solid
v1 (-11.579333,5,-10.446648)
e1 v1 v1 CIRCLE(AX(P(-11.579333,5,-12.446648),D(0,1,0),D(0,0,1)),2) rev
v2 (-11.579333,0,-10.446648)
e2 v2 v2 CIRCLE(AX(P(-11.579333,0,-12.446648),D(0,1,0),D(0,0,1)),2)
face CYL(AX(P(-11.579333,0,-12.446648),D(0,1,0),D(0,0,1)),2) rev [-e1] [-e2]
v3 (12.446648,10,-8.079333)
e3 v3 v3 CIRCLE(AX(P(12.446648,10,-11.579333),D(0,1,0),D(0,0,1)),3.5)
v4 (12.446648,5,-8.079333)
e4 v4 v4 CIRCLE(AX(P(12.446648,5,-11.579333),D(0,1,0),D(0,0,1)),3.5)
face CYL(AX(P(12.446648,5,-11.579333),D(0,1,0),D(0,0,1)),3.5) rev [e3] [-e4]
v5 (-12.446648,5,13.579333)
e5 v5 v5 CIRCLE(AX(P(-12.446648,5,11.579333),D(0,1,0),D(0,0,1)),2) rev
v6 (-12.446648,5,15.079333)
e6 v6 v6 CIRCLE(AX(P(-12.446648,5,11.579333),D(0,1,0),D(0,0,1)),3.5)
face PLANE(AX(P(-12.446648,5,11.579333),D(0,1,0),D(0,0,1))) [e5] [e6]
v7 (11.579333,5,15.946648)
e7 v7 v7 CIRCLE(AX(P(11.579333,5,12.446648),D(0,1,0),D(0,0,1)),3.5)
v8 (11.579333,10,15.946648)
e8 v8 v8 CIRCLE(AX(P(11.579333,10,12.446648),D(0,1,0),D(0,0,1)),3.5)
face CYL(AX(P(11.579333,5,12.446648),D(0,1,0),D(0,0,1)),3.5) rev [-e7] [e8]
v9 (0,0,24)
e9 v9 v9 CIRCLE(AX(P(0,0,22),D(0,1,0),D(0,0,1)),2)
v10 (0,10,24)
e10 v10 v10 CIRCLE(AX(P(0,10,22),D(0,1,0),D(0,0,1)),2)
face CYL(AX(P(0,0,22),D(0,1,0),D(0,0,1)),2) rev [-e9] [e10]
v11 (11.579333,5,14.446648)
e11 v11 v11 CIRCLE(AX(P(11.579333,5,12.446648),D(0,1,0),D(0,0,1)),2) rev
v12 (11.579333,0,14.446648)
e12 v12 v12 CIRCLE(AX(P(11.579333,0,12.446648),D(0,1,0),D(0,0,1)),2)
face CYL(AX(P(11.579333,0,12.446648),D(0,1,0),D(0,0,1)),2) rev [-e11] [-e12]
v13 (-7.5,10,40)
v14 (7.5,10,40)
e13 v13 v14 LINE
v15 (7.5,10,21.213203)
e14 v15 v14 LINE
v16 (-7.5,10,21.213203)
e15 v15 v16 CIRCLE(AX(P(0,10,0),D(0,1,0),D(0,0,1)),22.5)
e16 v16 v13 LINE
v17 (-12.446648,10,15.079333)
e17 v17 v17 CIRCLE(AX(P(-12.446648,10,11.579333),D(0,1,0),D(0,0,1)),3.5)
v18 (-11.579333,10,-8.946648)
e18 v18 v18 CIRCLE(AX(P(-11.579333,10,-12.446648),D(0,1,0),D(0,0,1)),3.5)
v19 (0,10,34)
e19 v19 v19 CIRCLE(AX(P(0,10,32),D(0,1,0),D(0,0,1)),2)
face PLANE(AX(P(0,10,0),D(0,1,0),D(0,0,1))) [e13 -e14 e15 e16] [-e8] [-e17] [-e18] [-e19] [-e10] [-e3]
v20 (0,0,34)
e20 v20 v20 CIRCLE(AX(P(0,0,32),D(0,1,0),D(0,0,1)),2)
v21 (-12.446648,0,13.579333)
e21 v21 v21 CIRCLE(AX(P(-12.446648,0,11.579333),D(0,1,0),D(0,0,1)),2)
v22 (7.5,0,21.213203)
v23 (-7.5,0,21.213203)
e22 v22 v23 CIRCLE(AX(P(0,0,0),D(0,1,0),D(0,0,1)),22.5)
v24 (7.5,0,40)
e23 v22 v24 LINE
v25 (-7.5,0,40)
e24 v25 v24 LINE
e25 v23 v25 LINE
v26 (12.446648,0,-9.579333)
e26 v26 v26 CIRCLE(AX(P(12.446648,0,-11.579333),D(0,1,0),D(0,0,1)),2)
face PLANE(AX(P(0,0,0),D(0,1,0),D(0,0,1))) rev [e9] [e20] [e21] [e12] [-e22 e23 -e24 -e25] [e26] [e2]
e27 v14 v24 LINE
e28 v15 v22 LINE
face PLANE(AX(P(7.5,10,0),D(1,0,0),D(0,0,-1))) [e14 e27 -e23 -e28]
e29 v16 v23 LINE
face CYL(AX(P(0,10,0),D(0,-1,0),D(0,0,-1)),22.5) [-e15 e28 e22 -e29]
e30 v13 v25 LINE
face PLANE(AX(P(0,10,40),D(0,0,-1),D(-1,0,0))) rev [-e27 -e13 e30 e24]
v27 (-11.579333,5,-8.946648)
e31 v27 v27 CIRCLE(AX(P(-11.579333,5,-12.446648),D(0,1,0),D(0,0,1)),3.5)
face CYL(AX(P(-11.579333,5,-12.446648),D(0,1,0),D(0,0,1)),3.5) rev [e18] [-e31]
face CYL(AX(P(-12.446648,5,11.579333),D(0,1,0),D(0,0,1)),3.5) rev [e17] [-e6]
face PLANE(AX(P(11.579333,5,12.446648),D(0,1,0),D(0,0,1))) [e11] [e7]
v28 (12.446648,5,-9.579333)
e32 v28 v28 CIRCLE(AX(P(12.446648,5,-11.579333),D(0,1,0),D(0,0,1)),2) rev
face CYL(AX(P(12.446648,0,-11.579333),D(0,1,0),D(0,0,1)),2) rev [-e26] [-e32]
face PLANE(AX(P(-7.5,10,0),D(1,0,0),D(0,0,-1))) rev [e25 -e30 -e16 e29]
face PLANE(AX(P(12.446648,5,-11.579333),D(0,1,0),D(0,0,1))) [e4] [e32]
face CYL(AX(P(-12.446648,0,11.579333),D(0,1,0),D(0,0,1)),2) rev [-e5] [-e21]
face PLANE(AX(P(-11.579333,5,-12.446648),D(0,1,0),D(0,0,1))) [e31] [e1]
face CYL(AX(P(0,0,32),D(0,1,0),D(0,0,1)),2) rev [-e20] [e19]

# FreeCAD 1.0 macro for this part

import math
import FreeCAD as App
import Part
import Sketcher
Q = App.Units.Quantity

doc = App.newDocument("Part")
params = doc.addObject("Spreadsheet::Sheet", "Params")
for row, (alias, value) in enumerate([
    ("sketch1_radius", "22.5 mm"),
    ("sketch1_width", "15 mm"),
    ("pad1_length", "10 mm"),
    ("sketch2_diameter", "4 mm"),
    ("pocket1_length", "10 mm"),
    ("sketch3_diameter", "4 mm"),
    ("pocket2_length", "10 mm"),
    ("sketch4_diameter", "7 mm"),
    ("pocket3_length", "5 mm"),
], start=1):
    params.set(f"A{row}", alias)
    params.set(f"B{row}", "=" + value)
    params.setAlias(f"B{row}", alias)

body = doc.addObject("PartDesign::Body", "Body")

# Sketch on XZ plane
sketch1 = body.newObject("Sketcher::SketchObject", "Sketch")
sketch1.AttachmentSupport = (doc.getObject("XZ_Plane"), [""])
sketch1.MapMode = "FlatFace"
sketch1.addGeometry([
    Part.LineSegment(App.Vector(-8, 40, 0), App.Vector(8, 40, 0)),  # 0
    Part.LineSegment(App.Vector(8, 40, 0), App.Vector(8, 21, 0)),  # 1
    Part.ArcOfCircle(Part.Circle(App.Vector(0, 0, 0), App.Vector(0, 0, 1), 22), math.radians(0), math.radians(71)),  # 2
    Part.ArcOfCircle(Part.Circle(App.Vector(0, 0, 0), App.Vector(0, 0, 1), 22), math.radians(109), math.radians(360)),  # 3
    Part.LineSegment(App.Vector(-8, 21, 0), App.Vector(-8, 40, 0)),  # 4
], False)
sketch1.addConstraint([
    Sketcher.Constraint("Coincident", 0, 2, 1, 1),
    Sketcher.Constraint("Coincident", 1, 2, 2, 2),
    Sketcher.Constraint("Tangent", 2, 1, 3, 2),
    Sketcher.Constraint("Coincident", 3, 1, 4, 1),
    Sketcher.Constraint("Coincident", 4, 2, 0, 1),
    Sketcher.Constraint("Horizontal", 0),
    Sketcher.Constraint("Vertical", 1),
    Sketcher.Constraint("Vertical", 4),
    Sketcher.Constraint("Coincident", 2, 3, -1, 1),
    Sketcher.Constraint("Equal", 2, 3),
    Sketcher.Constraint("PointOnObject", 2, 1, -1),
    Sketcher.Constraint("Horizontal", 1, 2, 3, 1),
    Sketcher.Constraint("Radius", 2, Q("22.5 mm")),
    Sketcher.Constraint("DistanceX", 0, 1, 0, 2, Q("15 mm")),
    Sketcher.Constraint("DistanceY", -1, 1, 0, 2, Q("40 mm")),
])
sketch1.setExpression("Constraints[12]", "Params.sketch1_radius")
sketch1.setExpression("Constraints[13]", "Params.sketch1_width")
pad1 = body.newObject("PartDesign::Pad", "Pad")
pad1.Profile = sketch1
pad1.setExpression("Length", "Params.pad1_length")
pad1.Reversed = True

# Sketch on XZ plane
sketch2 = body.newObject("Sketcher::SketchObject", "Sketch001")
sketch2.AttachmentSupport = (doc.getObject("XZ_Plane"), [""])
sketch2.MapMode = "FlatFace"
sketch2.AttachmentOffset = App.Placement(App.Vector(0, 0, -10), App.Rotation())
sketch2.addGeometry([
    Part.Circle(App.Vector(-11.6, -12.4, 0), App.Vector(0, 0, 1), 2),
    Part.Circle(App.Vector(12.4, -11.6, 0), App.Vector(0, 0, 1), 2),
    Part.Circle(App.Vector(11.6, 12.4, 0), App.Vector(0, 0, 1), 2),
    Part.Circle(App.Vector(-12.4, 11.6, 0), App.Vector(0, 0, 1), 2),
], False)
sketch2.addConstraint([
    Sketcher.Constraint("Equal", 0, 1),
    Sketcher.Constraint("Equal", 1, 2),
    Sketcher.Constraint("Equal", 2, 3),
    Sketcher.Constraint("Symmetric", 0, 3, 2, 3, -1, 1),
    Sketcher.Constraint("Symmetric", 1, 3, 3, 3, -1, 1),
    Sketcher.Constraint("Diameter", 0, Q("4 mm")),
    Sketcher.Constraint("DistanceY", 0, 3, -1, 1, Q("12.446648 mm")),
    Sketcher.Constraint("DistanceX", -1, 1, 1, 3, Q("12.446648 mm")),
    Sketcher.Constraint("DistanceX", 0, 3, 1, 3, Q("24.025981 mm")),
    Sketcher.Constraint("DistanceY", 1, 3, 2, 3, Q("24.025981 mm")),
])
sketch2.setExpression("Constraints[5]", "Params.sketch2_diameter")
pocket1 = body.newObject("PartDesign::Pocket", "Pocket")
pocket1.Profile = sketch2
pocket1.setExpression("Length", "Params.pocket1_length")
pocket1.Reversed = True

# Sketch on XZ plane
sketch3 = body.newObject("Sketcher::SketchObject", "Sketch002")
sketch3.AttachmentSupport = (doc.getObject("XZ_Plane"), [""])
sketch3.MapMode = "FlatFace"
sketch3.AttachmentOffset = App.Placement(App.Vector(0, 0, -10), App.Rotation())
sketch3.addGeometry([
    Part.Circle(App.Vector(0, 22, 0), App.Vector(0, 0, 1), 2),
    Part.Circle(App.Vector(0, 32, 0), App.Vector(0, 0, 1), 2),
], False)
sketch3.addConstraint([
    Sketcher.Constraint("Equal", 0, 1),
    Sketcher.Constraint("PointOnObject", 0, 3, -2),
    Sketcher.Constraint("PointOnObject", 1, 3, -2),
    Sketcher.Constraint("Diameter", 0, Q("4 mm")),
    Sketcher.Constraint("DistanceY", -1, 1, 0, 3, Q("22 mm")),
    Sketcher.Constraint("DistanceY", -1, 1, 1, 3, Q("32 mm")),
])
sketch3.setExpression("Constraints[3]", "Params.sketch3_diameter")
pocket2 = body.newObject("PartDesign::Pocket", "Pocket001")
pocket2.Profile = sketch3
pocket2.setExpression("Length", "Params.pocket2_length")
pocket2.Reversed = True

# Sketch on XZ plane
sketch4 = body.newObject("Sketcher::SketchObject", "Sketch003")
sketch4.AttachmentSupport = (doc.getObject("XZ_Plane"), [""])
sketch4.MapMode = "FlatFace"
sketch4.AttachmentOffset = App.Placement(App.Vector(0, 0, -10), App.Rotation())
sketch4.addGeometry([
    Part.Circle(App.Vector(-11.6, -12.4, 0), App.Vector(0, 0, 1), 3.5),
    Part.Circle(App.Vector(12.4, -11.6, 0), App.Vector(0, 0, 1), 3.5),
    Part.Circle(App.Vector(11.6, 12.4, 0), App.Vector(0, 0, 1), 3.5),
    Part.Circle(App.Vector(-12.4, 11.6, 0), App.Vector(0, 0, 1), 3.5),
], False)
sketch4.addConstraint([
    Sketcher.Constraint("Equal", 0, 1),
    Sketcher.Constraint("Equal", 1, 2),
    Sketcher.Constraint("Equal", 2, 3),
    Sketcher.Constraint("Symmetric", 0, 3, 2, 3, -1, 1),
    Sketcher.Constraint("Symmetric", 1, 3, 3, 3, -1, 1),
    Sketcher.Constraint("Diameter", 0, Q("7 mm")),
    Sketcher.Constraint("DistanceY", 0, 3, -1, 1, Q("12.446648 mm")),
    Sketcher.Constraint("DistanceX", -1, 1, 1, 3, Q("12.446648 mm")),
    Sketcher.Constraint("DistanceX", 0, 3, 1, 3, Q("24.025981 mm")),
    Sketcher.Constraint("DistanceY", 1, 3, 2, 3, Q("24.025981 mm")),
])
sketch4.setExpression("Constraints[5]", "Params.sketch4_diameter")
pocket3 = body.newObject("PartDesign::Pocket", "Pocket002")
pocket3.Profile = sketch4
pocket3.setExpression("Length", "Params.pocket3_length")
pocket3.Reversed = True

doc.recompute()
